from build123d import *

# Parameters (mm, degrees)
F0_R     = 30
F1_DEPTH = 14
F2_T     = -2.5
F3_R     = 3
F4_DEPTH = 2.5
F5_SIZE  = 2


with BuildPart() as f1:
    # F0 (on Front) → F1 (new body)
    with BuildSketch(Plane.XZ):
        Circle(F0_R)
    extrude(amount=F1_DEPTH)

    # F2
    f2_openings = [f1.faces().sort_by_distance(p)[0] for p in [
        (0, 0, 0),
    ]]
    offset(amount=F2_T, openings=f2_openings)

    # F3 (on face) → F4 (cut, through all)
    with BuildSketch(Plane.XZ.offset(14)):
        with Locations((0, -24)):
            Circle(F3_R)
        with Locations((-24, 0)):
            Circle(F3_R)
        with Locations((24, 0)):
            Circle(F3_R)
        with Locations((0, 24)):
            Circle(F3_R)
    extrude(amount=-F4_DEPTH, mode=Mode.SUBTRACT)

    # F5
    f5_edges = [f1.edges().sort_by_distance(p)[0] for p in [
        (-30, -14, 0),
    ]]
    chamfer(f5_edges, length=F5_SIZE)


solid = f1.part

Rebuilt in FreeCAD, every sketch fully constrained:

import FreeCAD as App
import Part
import Sketcher

V = App.Vector
Q = App.Units.Quantity


def edges_at(feature, points):
    """Names of the edges that pass closest to the given points."""
    edges = feature.Shape.Edges
    near = lambda p: min(range(len(edges)), key=lambda i: edges[i].distToShape(Part.Vertex(*p))[0])
    return sorted({f"Edge{near(p) + 1}" for p in points})


def faces_at(feature, points):
    """Names of the faces that lie closest to the given points."""
    faces = feature.Shape.Faces
    near = lambda p: min(range(len(faces)), key=lambda i: faces[i].distToShape(Part.Vertex(*p))[0])
    return sorted({f"Face{near(p) + 1}" for p in points})

doc = App.newDocument("Part")
body = doc.addObject("PartDesign::Body", "Body")

# Sketch on XZ plane
sketch1 = body.newObject("Sketcher::SketchObject", "Sketch")
sketch1.AttachmentSupport = (doc.getObject("XZ_Plane"), [""])
sketch1.MapMode = "FlatFace"
sketch1.addGeometry(Part.Circle(V(0, 0, 0), V(0, 0, 1), 30), False)
sketch1.addConstraint(Sketcher.Constraint("Coincident", 0, 3, -1, 1))
sketch1.addConstraint(Sketcher.Constraint("Diameter", 0, Q("60 mm")))
pad1 = body.newObject("PartDesign::Pad", "Pad")
pad1.Profile = sketch1
pad1.Length = 14
doc.recompute()

thickness = body.newObject("PartDesign::Thickness", "Thickness")
thickness.Base = (pad1, faces_at(pad1, [(0, 0, 0)]))
thickness.Value = 2.5
thickness.Reversed = True
thickness.Join = "Arc"

# Sketch on XZ plane
sketch2 = body.newObject("Sketcher::SketchObject", "Sketch001")
sketch2.AttachmentSupport = (doc.getObject("XZ_Plane"), [""])
sketch2.MapMode = "FlatFace"
sketch2.AttachmentOffset = App.Placement(V(0, 0, 14), App.Rotation())
sketch2.addGeometry(Part.Circle(V(0, -24, 0), V(0, 0, 1), 3), False)
sketch2.addGeometry(Part.Circle(V(-24, 0, 0), V(0, 0, 1), 3), False)
sketch2.addGeometry(Part.Circle(V(24, 0, 0), V(0, 0, 1), 3), False)
sketch2.addGeometry(Part.Circle(V(0, 24, 0), V(0, 0, 1), 3), False)
sketch2.addConstraint(Sketcher.Constraint("Equal", 0, 1))
sketch2.addConstraint(Sketcher.Constraint("Equal", 1, 2))
sketch2.addConstraint(Sketcher.Constraint("Equal", 2, 3))
sketch2.addConstraint(Sketcher.Constraint("Symmetric", 1, 3, 2, 3, -1, 1))
sketch2.addConstraint(Sketcher.Constraint("Symmetric", 0, 3, 3, 3, -1, 1))
sketch2.addConstraint(Sketcher.Constraint("PointOnObject", 0, 3, -2))
sketch2.addConstraint(Sketcher.Constraint("PointOnObject", 1, 3, -1))
sketch2.addConstraint(Sketcher.Constraint("Diameter", 0, Q("6 mm")))
sketch2.addConstraint(Sketcher.Constraint("DistanceY", 0, 3, -1, 1, Q("24 mm")))
sketch2.addConstraint(Sketcher.Constraint("DistanceX", 1, 3, -1, 1, Q("24 mm")))
pocket1 = body.newObject("PartDesign::Pocket", "Pocket")
pocket1.Profile = sketch2
pocket1.Type = "ThroughAll"
doc.recompute()

chamfer = body.newObject("PartDesign::Chamfer", "Chamfer")
chamfer.Base = (pocket1, edges_at(pocket1, [(-30, -14, 0)]))
chamfer.Size = 2

doc.recompute()
